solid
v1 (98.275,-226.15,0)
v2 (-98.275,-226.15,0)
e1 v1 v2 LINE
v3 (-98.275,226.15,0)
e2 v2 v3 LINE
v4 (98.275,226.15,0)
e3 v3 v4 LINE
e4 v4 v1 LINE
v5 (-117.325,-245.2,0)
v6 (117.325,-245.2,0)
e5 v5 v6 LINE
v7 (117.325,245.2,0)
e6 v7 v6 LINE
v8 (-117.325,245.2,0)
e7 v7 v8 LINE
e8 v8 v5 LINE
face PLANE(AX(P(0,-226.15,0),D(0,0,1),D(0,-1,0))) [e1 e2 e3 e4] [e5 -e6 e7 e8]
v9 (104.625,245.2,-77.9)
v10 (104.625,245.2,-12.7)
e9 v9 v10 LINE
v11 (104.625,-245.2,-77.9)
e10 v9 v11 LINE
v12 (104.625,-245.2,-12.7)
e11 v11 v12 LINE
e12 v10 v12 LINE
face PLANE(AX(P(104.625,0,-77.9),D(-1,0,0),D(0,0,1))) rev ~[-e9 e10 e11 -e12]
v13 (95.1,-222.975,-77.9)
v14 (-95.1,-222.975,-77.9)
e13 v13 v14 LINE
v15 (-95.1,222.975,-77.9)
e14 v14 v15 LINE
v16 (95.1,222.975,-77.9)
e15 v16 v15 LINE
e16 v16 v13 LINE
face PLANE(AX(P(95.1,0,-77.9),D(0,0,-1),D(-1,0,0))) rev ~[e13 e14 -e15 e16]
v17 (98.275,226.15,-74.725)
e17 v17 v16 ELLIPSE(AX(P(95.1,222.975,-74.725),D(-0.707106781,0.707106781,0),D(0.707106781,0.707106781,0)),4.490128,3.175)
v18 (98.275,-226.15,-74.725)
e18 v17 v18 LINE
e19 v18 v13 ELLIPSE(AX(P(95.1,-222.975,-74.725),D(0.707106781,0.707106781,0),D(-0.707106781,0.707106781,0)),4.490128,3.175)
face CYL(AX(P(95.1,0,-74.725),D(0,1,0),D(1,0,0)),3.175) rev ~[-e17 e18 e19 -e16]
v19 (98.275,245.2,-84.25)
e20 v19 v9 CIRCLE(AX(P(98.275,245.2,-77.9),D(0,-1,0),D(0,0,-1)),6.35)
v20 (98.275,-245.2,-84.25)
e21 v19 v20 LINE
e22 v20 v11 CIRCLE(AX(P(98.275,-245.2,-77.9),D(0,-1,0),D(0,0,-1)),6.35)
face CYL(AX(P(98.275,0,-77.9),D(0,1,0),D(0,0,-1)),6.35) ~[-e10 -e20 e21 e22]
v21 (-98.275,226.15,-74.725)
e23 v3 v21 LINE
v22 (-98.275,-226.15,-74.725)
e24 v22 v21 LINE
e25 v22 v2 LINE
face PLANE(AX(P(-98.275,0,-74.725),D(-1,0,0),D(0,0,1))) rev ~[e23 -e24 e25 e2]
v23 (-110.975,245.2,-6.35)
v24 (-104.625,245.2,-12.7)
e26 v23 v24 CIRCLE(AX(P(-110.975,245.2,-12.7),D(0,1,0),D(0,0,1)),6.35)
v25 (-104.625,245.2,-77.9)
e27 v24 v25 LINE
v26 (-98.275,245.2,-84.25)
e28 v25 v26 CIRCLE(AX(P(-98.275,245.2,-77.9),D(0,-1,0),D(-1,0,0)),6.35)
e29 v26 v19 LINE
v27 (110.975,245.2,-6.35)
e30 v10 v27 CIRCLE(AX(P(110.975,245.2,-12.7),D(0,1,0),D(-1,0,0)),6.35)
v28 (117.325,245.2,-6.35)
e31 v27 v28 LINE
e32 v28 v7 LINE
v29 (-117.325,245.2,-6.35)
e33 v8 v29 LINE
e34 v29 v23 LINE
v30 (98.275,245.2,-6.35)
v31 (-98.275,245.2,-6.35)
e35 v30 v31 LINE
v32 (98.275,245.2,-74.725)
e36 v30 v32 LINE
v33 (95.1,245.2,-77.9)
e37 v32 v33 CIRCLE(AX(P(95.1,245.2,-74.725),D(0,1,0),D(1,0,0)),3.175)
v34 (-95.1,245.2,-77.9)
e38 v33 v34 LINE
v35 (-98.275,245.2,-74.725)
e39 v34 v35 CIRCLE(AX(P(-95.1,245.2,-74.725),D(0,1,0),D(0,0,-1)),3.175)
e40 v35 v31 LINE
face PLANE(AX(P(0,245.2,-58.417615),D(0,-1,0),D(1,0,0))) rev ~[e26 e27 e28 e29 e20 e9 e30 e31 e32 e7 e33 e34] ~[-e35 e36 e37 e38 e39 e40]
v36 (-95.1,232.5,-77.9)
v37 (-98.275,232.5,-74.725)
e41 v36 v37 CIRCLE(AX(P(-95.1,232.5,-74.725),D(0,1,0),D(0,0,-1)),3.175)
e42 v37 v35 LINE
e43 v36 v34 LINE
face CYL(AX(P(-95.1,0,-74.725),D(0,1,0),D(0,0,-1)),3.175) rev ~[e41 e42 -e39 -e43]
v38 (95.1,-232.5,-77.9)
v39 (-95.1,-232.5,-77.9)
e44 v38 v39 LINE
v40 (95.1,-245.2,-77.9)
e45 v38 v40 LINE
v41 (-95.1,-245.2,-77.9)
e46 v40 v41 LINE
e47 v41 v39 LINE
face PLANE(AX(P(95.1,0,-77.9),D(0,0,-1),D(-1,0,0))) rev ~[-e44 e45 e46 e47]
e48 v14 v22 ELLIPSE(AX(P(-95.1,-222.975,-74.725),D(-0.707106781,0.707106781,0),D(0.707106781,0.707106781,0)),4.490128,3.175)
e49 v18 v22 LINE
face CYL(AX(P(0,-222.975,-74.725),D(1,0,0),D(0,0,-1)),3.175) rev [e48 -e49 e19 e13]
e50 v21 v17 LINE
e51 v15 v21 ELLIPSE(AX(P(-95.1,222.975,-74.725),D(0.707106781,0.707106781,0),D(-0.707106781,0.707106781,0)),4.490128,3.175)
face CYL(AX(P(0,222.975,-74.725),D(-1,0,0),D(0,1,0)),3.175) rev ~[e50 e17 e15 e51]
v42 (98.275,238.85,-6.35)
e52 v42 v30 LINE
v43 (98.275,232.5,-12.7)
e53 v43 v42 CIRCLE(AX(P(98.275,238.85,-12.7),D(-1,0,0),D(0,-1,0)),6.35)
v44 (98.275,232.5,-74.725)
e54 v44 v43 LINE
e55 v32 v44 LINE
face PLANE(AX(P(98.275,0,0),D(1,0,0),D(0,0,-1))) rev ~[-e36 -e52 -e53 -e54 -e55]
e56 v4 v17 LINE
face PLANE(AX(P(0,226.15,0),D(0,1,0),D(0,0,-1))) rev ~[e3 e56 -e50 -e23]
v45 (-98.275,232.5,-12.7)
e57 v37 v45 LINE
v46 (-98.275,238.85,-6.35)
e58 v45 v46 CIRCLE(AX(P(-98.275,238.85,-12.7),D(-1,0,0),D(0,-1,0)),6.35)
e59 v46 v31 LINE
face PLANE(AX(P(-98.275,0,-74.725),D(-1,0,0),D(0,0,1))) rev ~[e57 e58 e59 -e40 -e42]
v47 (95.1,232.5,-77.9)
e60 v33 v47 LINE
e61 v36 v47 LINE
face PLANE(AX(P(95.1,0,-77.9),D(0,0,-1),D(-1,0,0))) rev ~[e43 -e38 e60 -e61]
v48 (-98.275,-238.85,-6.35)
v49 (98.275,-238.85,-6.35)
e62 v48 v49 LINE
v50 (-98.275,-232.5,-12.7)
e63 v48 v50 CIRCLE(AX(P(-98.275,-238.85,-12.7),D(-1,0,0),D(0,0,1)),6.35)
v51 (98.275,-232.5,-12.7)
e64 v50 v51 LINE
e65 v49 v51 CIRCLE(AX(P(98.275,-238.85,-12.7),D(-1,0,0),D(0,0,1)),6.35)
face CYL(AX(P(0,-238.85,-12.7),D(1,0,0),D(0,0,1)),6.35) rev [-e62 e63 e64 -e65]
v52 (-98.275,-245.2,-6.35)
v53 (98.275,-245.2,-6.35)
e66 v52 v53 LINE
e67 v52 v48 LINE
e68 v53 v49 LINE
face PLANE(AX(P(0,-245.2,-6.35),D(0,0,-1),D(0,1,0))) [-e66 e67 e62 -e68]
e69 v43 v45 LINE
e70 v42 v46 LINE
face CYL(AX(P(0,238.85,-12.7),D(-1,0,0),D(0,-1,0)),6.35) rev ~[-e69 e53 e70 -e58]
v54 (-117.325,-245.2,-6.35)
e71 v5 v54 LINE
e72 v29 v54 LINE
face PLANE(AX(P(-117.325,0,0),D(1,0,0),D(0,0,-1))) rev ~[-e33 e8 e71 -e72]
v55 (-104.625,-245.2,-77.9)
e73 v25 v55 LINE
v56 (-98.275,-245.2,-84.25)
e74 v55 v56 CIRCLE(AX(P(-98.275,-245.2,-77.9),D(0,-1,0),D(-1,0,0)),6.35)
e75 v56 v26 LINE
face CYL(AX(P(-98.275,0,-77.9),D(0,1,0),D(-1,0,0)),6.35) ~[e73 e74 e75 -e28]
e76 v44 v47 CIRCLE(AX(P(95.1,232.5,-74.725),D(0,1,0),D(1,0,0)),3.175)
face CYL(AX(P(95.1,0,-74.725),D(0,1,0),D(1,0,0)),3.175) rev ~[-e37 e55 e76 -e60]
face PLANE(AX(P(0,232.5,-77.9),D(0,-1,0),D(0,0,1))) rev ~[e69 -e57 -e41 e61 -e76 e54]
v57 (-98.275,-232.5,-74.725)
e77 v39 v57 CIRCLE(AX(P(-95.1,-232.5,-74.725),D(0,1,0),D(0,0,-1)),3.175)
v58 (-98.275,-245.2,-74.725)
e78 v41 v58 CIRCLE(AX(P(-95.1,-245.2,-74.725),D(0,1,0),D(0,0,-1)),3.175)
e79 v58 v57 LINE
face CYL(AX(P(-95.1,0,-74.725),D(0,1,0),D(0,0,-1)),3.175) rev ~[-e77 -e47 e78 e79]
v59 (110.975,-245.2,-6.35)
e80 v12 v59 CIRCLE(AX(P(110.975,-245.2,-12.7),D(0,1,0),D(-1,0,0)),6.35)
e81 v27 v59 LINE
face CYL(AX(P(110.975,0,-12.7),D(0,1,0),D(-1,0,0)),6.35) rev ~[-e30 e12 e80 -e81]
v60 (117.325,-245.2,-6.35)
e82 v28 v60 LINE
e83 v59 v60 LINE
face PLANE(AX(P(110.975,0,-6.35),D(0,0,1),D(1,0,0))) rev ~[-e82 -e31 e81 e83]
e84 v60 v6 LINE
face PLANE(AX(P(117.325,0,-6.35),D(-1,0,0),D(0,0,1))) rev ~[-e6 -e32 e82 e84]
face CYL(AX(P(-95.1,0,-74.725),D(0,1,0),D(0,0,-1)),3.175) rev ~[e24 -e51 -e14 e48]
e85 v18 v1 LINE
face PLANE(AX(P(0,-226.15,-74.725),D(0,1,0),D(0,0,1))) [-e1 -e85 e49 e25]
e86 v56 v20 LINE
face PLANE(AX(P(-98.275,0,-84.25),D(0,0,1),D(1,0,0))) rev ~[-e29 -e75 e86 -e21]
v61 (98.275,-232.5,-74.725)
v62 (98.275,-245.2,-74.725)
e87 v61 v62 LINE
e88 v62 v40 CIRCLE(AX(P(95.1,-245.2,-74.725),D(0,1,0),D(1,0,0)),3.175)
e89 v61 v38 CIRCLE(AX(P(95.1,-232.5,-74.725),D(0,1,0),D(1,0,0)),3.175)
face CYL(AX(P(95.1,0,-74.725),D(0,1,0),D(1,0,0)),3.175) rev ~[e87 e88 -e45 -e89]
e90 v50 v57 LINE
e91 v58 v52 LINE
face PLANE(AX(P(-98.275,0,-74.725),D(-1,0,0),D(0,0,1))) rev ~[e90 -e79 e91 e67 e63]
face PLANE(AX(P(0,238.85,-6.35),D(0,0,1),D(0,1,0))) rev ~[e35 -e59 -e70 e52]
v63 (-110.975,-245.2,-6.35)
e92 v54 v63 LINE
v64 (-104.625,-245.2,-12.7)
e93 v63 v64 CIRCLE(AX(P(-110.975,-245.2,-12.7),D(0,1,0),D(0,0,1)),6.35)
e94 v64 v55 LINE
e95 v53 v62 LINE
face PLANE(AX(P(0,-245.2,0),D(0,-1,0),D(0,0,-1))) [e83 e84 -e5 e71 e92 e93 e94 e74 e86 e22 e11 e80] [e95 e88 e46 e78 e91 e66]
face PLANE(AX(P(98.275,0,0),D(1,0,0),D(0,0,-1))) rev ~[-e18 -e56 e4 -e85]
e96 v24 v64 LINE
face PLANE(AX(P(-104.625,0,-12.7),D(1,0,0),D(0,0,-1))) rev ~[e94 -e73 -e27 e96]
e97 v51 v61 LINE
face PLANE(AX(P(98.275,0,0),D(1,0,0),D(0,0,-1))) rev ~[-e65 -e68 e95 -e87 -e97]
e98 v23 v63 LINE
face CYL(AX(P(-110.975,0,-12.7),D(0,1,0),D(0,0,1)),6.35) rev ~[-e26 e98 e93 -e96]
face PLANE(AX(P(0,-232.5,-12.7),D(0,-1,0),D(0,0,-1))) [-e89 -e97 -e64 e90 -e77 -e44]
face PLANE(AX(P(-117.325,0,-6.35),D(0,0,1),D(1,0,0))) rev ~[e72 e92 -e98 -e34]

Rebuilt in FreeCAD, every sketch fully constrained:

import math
import FreeCAD as App
import Part
import Sketcher

V = App.Vector
Q = App.Units.Quantity

doc = App.newDocument("Part")
body = doc.addObject("PartDesign::Body", "Body")

# Sketch on XZ plane
sketch1 = body.newObject("Sketcher::SketchObject", "Sketch")
sketch1.AttachmentSupport = (doc.getObject("XZ_Plane"), [""])
sketch1.MapMode = "FlatFace"
sketch1.addGeometry([
    Part.LineSegment(V(-98.3, 0, 0), V(-117.3, 0, 0)),  # 0
    Part.LineSegment(V(-117.3, 0, 0), V(-117.3, -6.3, 0)),  # 1
    Part.LineSegment(V(-117.3, -6.3, 0), V(-111, -6.3, 0)),  # 2
    Part.ArcOfCircle(Part.Circle(V(-111, -12.7, 0), V(0, 0, 1), 6.3), math.radians(0), math.radians(90)),  # 3
    Part.LineSegment(V(-104.6, -12.7, 0), V(-104.6, -77.9, 0)),  # 4
    Part.ArcOfCircle(Part.Circle(V(-98.3, -77.9, 0), V(0, 0, 1), 6.3), math.radians(180), math.radians(270)),  # 5
    Part.LineSegment(V(-98.3, -84.2, 0), V(98.3, -84.2, 0)),  # 6
    Part.ArcOfCircle(Part.Circle(V(98.3, -77.9, 0), V(0, 0, 1), 6.3), math.radians(-90), math.radians(0)),  # 7
    Part.LineSegment(V(104.6, -77.9, 0), V(104.6, -12.7, 0)),  # 8
    Part.ArcOfCircle(Part.Circle(V(111, -12.7, 0), V(0, 0, 1), 6.3), math.radians(90), math.radians(180)),  # 9
    Part.LineSegment(V(111, -6.3, 0), V(117.3, -6.3, 0)),  # 10
    Part.LineSegment(V(117.3, -6.3, 0), V(117.3, 0, 0)),  # 11
    Part.LineSegment(V(117.3, 0, 0), V(98.3, 0, 0)),  # 12
    Part.LineSegment(V(98.3, 0, 0), V(98.3, -74.7, 0)),  # 13
    Part.ArcOfCircle(Part.Circle(V(95.1, -74.7, 0), V(0, 0, 1), 3.2), math.radians(-90), math.radians(0)),  # 14
    Part.LineSegment(V(95.1, -77.9, 0), V(-95.1, -77.9, 0)),  # 15
    Part.ArcOfCircle(Part.Circle(V(-95.1, -74.7, 0), V(0, 0, 1), 3.2), math.radians(180), math.radians(270)),  # 16
    Part.LineSegment(V(-98.3, -74.7, 0), V(-98.3, 0, 0)),  # 17
], False)
sketch1.addConstraint([
    Sketcher.Constraint("Coincident", 0, 2, 1, 1),
    Sketcher.Constraint("Coincident", 1, 2, 2, 1),
    Sketcher.Constraint("Tangent", 2, 2, 3, 2),
    Sketcher.Constraint("Tangent", 3, 1, 4, 1),
    Sketcher.Constraint("Tangent", 4, 2, 5, 1),
    Sketcher.Constraint("Tangent", 5, 2, 6, 1),
    Sketcher.Constraint("Tangent", 6, 2, 7, 1),
    Sketcher.Constraint("Tangent", 7, 2, 8, 1),
    Sketcher.Constraint("Tangent", 8, 2, 9, 2),
    Sketcher.Constraint("Tangent", 9, 1, 10, 1),
    Sketcher.Constraint("Coincident", 10, 2, 11, 1),
    Sketcher.Constraint("Coincident", 11, 2, 12, 1),
    Sketcher.Constraint("Coincident", 12, 2, 13, 1),
    Sketcher.Constraint("Tangent", 13, 2, 14, 2),
    Sketcher.Constraint("Tangent", 14, 1, 15, 1),
    Sketcher.Constraint("Tangent", 15, 2, 16, 2),
    Sketcher.Constraint("Tangent", 16, 1, 17, 1),
    Sketcher.Constraint("Coincident", 17, 2, 0, 1),
    Sketcher.Constraint("Horizontal", 0),
    Sketcher.Constraint("Vertical", 1),
    Sketcher.Constraint("Horizontal", 2),
    Sketcher.Constraint("Vertical", 4),
    Sketcher.Constraint("Horizontal", 6),
    Sketcher.Constraint("Vertical", 8),
    Sketcher.Constraint("Horizontal", 10),
    Sketcher.Constraint("Vertical", 11),
    Sketcher.Constraint("Horizontal", 12),
    Sketcher.Constraint("Vertical", 13),
    Sketcher.Constraint("Horizontal", 15),
    Sketcher.Constraint("Vertical", 17),
    Sketcher.Constraint("Equal", 3, 5),
    Sketcher.Constraint("Equal", 5, 7),
    Sketcher.Constraint("Equal", 7, 9),
    Sketcher.Constraint("Equal", 14, 16),
    Sketcher.Constraint("Symmetric", 0, 2, 11, 2, -1, 1),
    Sketcher.Constraint("Symmetric", 3, 3, 9, 3, -2),
    Sketcher.Constraint("Symmetric", 12, 2, 17, 2, -2),
    Sketcher.Constraint("Horizontal", 7, 2, 14, 1),
    Sketcher.Constraint("Vertical", 6, 2, 12, 2),
    Sketcher.Constraint("Equal", 10, 1),
    Sketcher.Constraint("Radius", 3, Q("6.35 mm")),
    Sketcher.Constraint("DistanceX", 15, 2, 15, 1, Q("190.2 mm")),
    Sketcher.Constraint("DistanceY", 4, 2, 4, 1, Q("65.2 mm")),
    Sketcher.Constraint("Radius", 14, Q("3.175 mm")),
    Sketcher.Constraint("DistanceX", 0, 2, 0, 1, Q("19.05 mm")),
])
pad1 = body.newObject("PartDesign::Pad", "Pad")
pad1.Profile = sketch1
pad1.Type = "TwoLengths"
pad1.Length = 245.2
pad1.Length2 = 245.2
pad1.Reversed = True

# Sketch on YZ plane
sketch2 = body.newObject("Sketcher::SketchObject", "Sketch001")
sketch2.AttachmentSupport = (doc.getObject("YZ_Plane"), [""])
sketch2.MapMode = "FlatFace"
sketch2.addGeometry([
    Part.LineSegment(V(-226.2, 0, 0), V(-245.2, 0, 0)),  # 0
    Part.LineSegment(V(-245.2, 0, 0), V(-245.2, -6.3, 0)),  # 1
    Part.LineSegment(V(-245.2, -6.3, 0), V(-238.8, -6.3, 0)),  # 2
    Part.ArcOfCircle(Part.Circle(V(-238.8, -12.7, 0), V(0, 0, 1), 6.3), math.radians(0), math.radians(90)),  # 3
    Part.LineSegment(V(-232.5, -12.7, 0), V(-232.5, -77.9, 0)),  # 4
    Part.ArcOfCircle(Part.Circle(V(-226.2, -77.9, 0), V(0, 0, 1), 6.3), math.radians(180), math.radians(270)),  # 5
    Part.LineSegment(V(-226.2, -84.2, 0), V(226.2, -84.2, 0)),  # 6
    Part.ArcOfCircle(Part.Circle(V(226.2, -77.9, 0), V(0, 0, 1), 6.3), math.radians(-90), math.radians(0)),  # 7
    Part.LineSegment(V(232.5, -77.9, 0), V(232.5, -12.7, 0)),  # 8
    Part.ArcOfCircle(Part.Circle(V(238.8, -12.7, 0), V(0, 0, 1), 6.3), math.radians(90), math.radians(180)),  # 9
    Part.LineSegment(V(238.8, -6.3, 0), V(245.2, -6.3, 0)),  # 10
    Part.LineSegment(V(245.2, -6.3, 0), V(245.2, 0, 0)),  # 11
    Part.LineSegment(V(245.2, 0, 0), V(226.2, 0, 0)),  # 12
    Part.LineSegment(V(226.2, 0, 0), V(226.2, -74.7, 0)),  # 13
    Part.ArcOfCircle(Part.Circle(V(223, -74.7, 0), V(0, 0, 1), 3.2), math.radians(-90), math.radians(0)),  # 14
    Part.LineSegment(V(223, -77.9, 0), V(-223, -77.9, 0)),  # 15
    Part.ArcOfCircle(Part.Circle(V(-223, -74.7, 0), V(0, 0, 1), 3.2), math.radians(180), math.radians(270)),  # 16
    Part.LineSegment(V(-226.2, -74.7, 0), V(-226.2, 0, 0)),  # 17
], False)
sketch2.addConstraint([
    Sketcher.Constraint("Coincident", 0, 2, 1, 1),
    Sketcher.Constraint("Coincident", 1, 2, 2, 1),
    Sketcher.Constraint("Tangent", 2, 2, 3, 2),
    Sketcher.Constraint("Tangent", 3, 1, 4, 1),
    Sketcher.Constraint("Tangent", 4, 2, 5, 1),
    Sketcher.Constraint("Tangent", 5, 2, 6, 1),
    Sketcher.Constraint("Tangent", 6, 2, 7, 1),
    Sketcher.Constraint("Tangent", 7, 2, 8, 1),
    Sketcher.Constraint("Tangent", 8, 2, 9, 2),
    Sketcher.Constraint("Tangent", 9, 1, 10, 1),
    Sketcher.Constraint("Coincident", 10, 2, 11, 1),
    Sketcher.Constraint("Coincident", 11, 2, 12, 1),
    Sketcher.Constraint("Coincident", 12, 2, 13, 1),
    Sketcher.Constraint("Tangent", 13, 2, 14, 2),
    Sketcher.Constraint("Tangent", 14, 1, 15, 1),
    Sketcher.Constraint("Tangent", 15, 2, 16, 2),
    Sketcher.Constraint("Tangent", 16, 1, 17, 1),
    Sketcher.Constraint("Coincident", 17, 2, 0, 1),
    Sketcher.Constraint("Horizontal", 0),
    Sketcher.Constraint("Vertical", 1),
    Sketcher.Constraint("Horizontal", 2),
    Sketcher.Constraint("Vertical", 4),
    Sketcher.Constraint("Horizontal", 6),
    Sketcher.Constraint("Vertical", 8),
    Sketcher.Constraint("Horizontal", 10),
    Sketcher.Constraint("Vertical", 11),
    Sketcher.Constraint("Horizontal", 12),
    Sketcher.Constraint("Vertical", 13),
    Sketcher.Constraint("Horizontal", 15),
    Sketcher.Constraint("Vertical", 17),
    Sketcher.Constraint("Equal", 3, 5),
    Sketcher.Constraint("Equal", 5, 7),
    Sketcher.Constraint("Equal", 7, 9),
    Sketcher.Constraint("Equal", 14, 16),
    Sketcher.Constraint("Symmetric", 0, 2, 11, 2, -1, 1),
    Sketcher.Constraint("Symmetric", 3, 3, 9, 3, -2),
    Sketcher.Constraint("Symmetric", 12, 2, 17, 2, -2),
    Sketcher.Constraint("Horizontal", 7, 2, 14, 1),
    Sketcher.Constraint("Vertical", 6, 2, 12, 2),
    Sketcher.Constraint("Equal", 10, 1),
    Sketcher.Constraint("Radius", 3, Q("6.35 mm")),
    Sketcher.Constraint("DistanceX", 6, 1, 6, 2, Q("452.3 mm")),
    Sketcher.Constraint("DistanceY", 4, 2, 4, 1, Q("65.2 mm")),
    Sketcher.Constraint("Radius", 14, Q("3.175 mm")),
    Sketcher.Constraint("DistanceX", 0, 2, 0, 1, Q("19.05 mm")),
])
pad2 = body.newObject("PartDesign::Pad", "Pad001")
pad2.Profile = sketch2
pad2.Type = "TwoLengths"
pad2.Length = 98.275
pad2.Length2 = 98.275

doc.recompute()
